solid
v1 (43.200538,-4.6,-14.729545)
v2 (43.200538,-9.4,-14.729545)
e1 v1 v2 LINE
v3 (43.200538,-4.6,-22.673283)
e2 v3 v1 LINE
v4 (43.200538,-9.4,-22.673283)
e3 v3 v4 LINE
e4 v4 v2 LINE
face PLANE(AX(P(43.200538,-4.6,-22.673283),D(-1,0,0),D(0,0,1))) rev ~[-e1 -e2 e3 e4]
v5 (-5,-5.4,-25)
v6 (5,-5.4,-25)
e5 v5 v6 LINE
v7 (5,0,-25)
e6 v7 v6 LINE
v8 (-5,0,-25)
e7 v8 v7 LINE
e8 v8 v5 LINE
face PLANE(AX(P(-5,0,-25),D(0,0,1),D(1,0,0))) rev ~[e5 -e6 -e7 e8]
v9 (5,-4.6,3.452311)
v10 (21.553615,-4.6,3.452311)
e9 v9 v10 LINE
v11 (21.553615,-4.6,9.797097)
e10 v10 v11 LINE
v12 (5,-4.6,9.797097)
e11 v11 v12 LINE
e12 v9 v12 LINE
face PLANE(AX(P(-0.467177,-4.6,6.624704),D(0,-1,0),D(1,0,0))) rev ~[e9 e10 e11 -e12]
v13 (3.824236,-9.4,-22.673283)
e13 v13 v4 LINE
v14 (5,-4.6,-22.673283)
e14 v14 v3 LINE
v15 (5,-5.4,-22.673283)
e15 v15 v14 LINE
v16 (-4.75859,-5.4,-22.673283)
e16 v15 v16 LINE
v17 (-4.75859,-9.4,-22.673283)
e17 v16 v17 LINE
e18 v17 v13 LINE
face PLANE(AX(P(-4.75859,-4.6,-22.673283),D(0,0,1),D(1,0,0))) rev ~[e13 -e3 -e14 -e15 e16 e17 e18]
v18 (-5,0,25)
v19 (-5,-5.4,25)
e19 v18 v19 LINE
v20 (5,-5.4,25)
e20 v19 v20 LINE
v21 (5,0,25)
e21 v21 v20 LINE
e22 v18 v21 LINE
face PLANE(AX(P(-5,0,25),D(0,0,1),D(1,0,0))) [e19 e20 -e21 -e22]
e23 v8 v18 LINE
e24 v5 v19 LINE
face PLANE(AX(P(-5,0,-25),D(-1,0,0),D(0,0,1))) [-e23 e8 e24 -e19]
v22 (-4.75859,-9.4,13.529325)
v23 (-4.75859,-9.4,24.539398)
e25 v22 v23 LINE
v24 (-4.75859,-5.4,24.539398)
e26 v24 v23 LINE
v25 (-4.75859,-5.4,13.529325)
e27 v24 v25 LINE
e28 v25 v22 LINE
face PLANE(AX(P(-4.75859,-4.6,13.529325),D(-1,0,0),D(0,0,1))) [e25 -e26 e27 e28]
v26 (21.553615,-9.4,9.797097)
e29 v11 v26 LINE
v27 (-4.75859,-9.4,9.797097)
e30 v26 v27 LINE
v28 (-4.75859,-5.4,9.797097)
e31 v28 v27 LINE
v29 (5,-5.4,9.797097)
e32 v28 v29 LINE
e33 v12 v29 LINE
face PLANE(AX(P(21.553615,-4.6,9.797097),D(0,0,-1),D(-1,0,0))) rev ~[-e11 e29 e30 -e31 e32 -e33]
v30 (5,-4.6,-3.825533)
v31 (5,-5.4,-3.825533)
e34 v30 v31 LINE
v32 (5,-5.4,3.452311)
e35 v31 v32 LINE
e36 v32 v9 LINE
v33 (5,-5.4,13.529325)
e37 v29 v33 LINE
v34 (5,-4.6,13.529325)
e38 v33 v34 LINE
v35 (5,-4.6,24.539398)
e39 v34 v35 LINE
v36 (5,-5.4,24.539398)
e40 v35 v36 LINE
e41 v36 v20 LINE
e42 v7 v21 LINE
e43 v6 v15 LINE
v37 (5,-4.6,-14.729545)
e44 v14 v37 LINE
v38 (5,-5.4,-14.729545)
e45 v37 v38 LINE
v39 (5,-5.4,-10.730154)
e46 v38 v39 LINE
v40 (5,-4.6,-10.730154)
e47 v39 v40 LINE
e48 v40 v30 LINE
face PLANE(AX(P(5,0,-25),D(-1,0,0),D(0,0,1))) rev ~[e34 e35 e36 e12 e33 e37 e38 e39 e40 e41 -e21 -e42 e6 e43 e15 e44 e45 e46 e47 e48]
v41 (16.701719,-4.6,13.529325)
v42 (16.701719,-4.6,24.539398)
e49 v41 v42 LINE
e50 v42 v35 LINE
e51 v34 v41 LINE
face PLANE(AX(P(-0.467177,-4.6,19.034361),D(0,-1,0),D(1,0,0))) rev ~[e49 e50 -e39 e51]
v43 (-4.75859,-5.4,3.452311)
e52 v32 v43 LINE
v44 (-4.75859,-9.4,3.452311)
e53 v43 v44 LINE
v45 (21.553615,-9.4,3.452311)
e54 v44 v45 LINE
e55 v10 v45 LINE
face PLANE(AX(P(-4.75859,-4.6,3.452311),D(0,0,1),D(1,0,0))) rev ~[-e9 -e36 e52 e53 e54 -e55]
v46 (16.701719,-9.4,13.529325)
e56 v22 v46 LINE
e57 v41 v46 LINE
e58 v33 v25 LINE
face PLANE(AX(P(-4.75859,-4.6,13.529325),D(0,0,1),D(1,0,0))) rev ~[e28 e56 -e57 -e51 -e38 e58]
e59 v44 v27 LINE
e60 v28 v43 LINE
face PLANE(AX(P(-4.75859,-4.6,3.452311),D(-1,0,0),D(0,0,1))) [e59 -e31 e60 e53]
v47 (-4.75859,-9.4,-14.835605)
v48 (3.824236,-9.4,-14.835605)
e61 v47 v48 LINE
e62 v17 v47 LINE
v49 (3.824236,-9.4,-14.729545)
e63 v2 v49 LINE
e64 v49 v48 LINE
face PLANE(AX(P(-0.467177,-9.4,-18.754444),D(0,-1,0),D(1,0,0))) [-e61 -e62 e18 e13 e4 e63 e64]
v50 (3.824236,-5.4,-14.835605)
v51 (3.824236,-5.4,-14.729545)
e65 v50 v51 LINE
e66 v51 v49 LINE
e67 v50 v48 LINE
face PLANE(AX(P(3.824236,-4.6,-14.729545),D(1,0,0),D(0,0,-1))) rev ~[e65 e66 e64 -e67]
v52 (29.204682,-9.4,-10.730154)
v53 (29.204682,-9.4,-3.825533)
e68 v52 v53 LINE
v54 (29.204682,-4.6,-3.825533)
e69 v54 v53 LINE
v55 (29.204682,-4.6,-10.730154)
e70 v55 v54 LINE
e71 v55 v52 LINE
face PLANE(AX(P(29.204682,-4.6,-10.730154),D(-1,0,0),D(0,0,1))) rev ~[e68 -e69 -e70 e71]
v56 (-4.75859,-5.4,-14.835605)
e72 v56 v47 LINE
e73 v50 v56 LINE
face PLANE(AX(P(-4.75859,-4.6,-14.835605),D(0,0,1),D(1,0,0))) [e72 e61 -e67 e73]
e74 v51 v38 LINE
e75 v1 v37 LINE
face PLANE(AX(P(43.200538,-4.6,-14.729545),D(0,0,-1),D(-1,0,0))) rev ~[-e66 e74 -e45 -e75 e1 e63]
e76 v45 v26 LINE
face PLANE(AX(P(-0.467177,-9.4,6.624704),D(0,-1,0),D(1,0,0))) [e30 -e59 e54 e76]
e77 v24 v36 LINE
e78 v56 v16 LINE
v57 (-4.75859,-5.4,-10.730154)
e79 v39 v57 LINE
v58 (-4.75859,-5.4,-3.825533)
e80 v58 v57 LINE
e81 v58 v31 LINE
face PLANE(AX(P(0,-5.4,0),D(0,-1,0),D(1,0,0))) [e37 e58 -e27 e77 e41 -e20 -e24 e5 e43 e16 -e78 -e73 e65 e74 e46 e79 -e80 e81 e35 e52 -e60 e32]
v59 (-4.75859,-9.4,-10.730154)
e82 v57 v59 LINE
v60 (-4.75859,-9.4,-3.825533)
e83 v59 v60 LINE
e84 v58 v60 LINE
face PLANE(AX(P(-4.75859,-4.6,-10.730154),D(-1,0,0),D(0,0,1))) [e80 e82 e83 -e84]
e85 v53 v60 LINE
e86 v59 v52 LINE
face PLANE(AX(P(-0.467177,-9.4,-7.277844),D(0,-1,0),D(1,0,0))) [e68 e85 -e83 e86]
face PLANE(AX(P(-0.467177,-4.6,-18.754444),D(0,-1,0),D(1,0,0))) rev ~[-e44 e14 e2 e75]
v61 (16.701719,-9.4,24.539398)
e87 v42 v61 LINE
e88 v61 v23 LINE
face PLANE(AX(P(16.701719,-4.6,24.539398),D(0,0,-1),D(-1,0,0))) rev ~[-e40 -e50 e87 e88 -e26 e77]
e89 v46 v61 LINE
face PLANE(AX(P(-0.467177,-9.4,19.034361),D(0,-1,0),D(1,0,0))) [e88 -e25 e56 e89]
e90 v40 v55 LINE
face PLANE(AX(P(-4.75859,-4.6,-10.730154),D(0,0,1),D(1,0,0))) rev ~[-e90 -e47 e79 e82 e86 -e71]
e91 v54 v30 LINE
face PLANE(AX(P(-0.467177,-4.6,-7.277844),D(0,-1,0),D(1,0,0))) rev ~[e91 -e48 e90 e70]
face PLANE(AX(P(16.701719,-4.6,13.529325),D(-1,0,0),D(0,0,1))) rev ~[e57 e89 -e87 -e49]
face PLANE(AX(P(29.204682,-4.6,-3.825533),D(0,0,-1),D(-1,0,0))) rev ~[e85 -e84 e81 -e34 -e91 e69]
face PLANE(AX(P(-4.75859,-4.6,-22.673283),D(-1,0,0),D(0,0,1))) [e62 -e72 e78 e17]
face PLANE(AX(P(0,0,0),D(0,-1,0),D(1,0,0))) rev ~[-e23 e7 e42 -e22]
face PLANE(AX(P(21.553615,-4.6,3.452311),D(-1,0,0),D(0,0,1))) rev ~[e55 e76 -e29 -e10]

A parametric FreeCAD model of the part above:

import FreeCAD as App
import Part
import Sketcher
from FreeCAD import Vector


def add_polygon(sketch, points):
    """Adds a closed chain of lines whose ends are joined by coincident constraints."""
    first, n = sketch.GeometryCount, len(points)
    for a, b in zip(points, points[1:] + points[:1]):
        sketch.addGeometry(Part.LineSegment(App.Vector(*a, 0), App.Vector(*b, 0)), False)
    for i in range(n):
        sketch.addConstraint(Sketcher.Constraint("Coincident", first + i, 2, first + (i + 1) % n, 1))

doc = App.newDocument("Part")
body = doc.addObject("PartDesign::Body", "Body")

sketch1 = body.newObject("Sketcher::SketchObject", "Sketch")
sketch1.AttachmentSupport = (doc.getObject("XZ_Plane"), [""])
sketch1.MapMode = "FlatFace"
add_polygon(sketch1, [(-5, 25), (-5, -25), (5, -25), (5, 25)])
sketch1.addConstraint([
    Sketcher.Constraint("Vertical", 0),
    Sketcher.Constraint("Horizontal", 1),
    Sketcher.Constraint("Vertical", 2),
    Sketcher.Constraint("Horizontal", 3),
    Sketcher.Constraint("Symmetric", 0, 2, 2, 2, -1, 1),
    Sketcher.Constraint("DistanceX", 1, 1, 1, 2, 10.0),
    Sketcher.Constraint("DistanceY", 0, 2, 0, 1, 50.0),
])
pad1 = body.newObject("PartDesign::Pad", "Pad")
pad1.Profile = sketch1
pad1.Length = 5.4

sketch2 = body.newObject("Sketcher::SketchObject", "Sketch001")
sketch2.AttachmentSupport = (doc.getObject("XZ_Plane"), [""])
sketch2.MapMode = "FlatFace"
sketch2.AttachmentOffset = App.Placement(Vector(0, 0, 4.6), App.Rotation())
add_polygon(sketch2, [(-4.76, 24.54), (-4.76, 13.53), (16.7, 13.53), (16.7, 24.54)])
add_polygon(sketch2, [(-4.76, -3.83), (-4.76, -10.73), (29.2, -10.73), (29.2, -3.83)])
add_polygon(sketch2, [(-4.76, -14.84), (-4.76, -22.67), (3.82, -22.67), (43.2, -22.67), (43.2, -14.73), (3.82, -14.73), (3.82, -14.84)])
add_polygon(sketch2, [(-4.76, 9.8), (-4.76, 3.45), (21.55, 3.45), (21.55, 9.8)])
sketch2.addConstraint([
    Sketcher.Constraint("Vertical", 0),
    Sketcher.Constraint("Horizontal", 1),
    Sketcher.Constraint("Vertical", 2),
    Sketcher.Constraint("Horizontal", 3),
    Sketcher.Constraint("Vertical", 4),
    Sketcher.Constraint("Horizontal", 5),
    Sketcher.Constraint("Vertical", 6),
    Sketcher.Constraint("Horizontal", 7),
    Sketcher.Constraint("Vertical", 8),
    Sketcher.Constraint("Horizontal", 9),
    Sketcher.Constraint("Horizontal", 10),
    Sketcher.Constraint("Vertical", 11),
    Sketcher.Constraint("Horizontal", 12),
    Sketcher.Constraint("Vertical", 13),
    Sketcher.Constraint("Horizontal", 14),
    Sketcher.Constraint("Vertical", 15),
    Sketcher.Constraint("Horizontal", 16),
    Sketcher.Constraint("Vertical", 17),
    Sketcher.Constraint("Horizontal", 18),
    Sketcher.Constraint("Vertical", 3, 2, 4, 2),
    Sketcher.Constraint("Vertical", 7, 2, 8, 2),
    Sketcher.Constraint("Vertical", 9, 2, 12, 2),
    Sketcher.Constraint("Vertical", 14, 2, 15, 2),
    Sketcher.Constraint("DistanceX", 10, 1, 10, 2, 39.376301),
    Sketcher.Constraint("DistanceX", 1, 1, 1, 2, 21.460309),
    Sketcher.Constraint("DistanceX", 5, 1, 5, 2, 33.963272),
    Sketcher.Constraint("DistanceY", 4, 2, 4, 1, 6.90462),
    Sketcher.Constraint("DistanceY", 13, 2, 13, 1, 0.10606),
    Sketcher.Constraint("DistanceY", -1, 1, 2, 2, 24.539398),
    Sketcher.Constraint("DistanceY", 17, 2, 2, 2, 14.742301),
    Sketcher.Constraint("DistanceX", 9, 1, 9, 2, 8.582827),
    Sketcher.Constraint("DistanceX", 16, 1, 16, 2, 26.312205),
    Sketcher.Constraint("DistanceY", 0, 2, 0, 1, 11.010073),
    Sketcher.Constraint("DistanceY", 8, 2, 8, 1, 7.837677),
    Sketcher.Constraint("DistanceY", 15, 2, 15, 1, 6.344787),
    Sketcher.Constraint("DistanceX", 0, 2, -1, 1, 4.75859),
    Sketcher.Constraint("DistanceY", 4, 2, 0, 2, 24.259479),
    Sketcher.Constraint("DistanceY", 8, 2, 4, 2, 11.943129),
])
pad2 = body.newObject("PartDesign::Pad", "Pad001")
pad2.Profile = sketch2
pad2.Length = 4.8

doc.recompute()
